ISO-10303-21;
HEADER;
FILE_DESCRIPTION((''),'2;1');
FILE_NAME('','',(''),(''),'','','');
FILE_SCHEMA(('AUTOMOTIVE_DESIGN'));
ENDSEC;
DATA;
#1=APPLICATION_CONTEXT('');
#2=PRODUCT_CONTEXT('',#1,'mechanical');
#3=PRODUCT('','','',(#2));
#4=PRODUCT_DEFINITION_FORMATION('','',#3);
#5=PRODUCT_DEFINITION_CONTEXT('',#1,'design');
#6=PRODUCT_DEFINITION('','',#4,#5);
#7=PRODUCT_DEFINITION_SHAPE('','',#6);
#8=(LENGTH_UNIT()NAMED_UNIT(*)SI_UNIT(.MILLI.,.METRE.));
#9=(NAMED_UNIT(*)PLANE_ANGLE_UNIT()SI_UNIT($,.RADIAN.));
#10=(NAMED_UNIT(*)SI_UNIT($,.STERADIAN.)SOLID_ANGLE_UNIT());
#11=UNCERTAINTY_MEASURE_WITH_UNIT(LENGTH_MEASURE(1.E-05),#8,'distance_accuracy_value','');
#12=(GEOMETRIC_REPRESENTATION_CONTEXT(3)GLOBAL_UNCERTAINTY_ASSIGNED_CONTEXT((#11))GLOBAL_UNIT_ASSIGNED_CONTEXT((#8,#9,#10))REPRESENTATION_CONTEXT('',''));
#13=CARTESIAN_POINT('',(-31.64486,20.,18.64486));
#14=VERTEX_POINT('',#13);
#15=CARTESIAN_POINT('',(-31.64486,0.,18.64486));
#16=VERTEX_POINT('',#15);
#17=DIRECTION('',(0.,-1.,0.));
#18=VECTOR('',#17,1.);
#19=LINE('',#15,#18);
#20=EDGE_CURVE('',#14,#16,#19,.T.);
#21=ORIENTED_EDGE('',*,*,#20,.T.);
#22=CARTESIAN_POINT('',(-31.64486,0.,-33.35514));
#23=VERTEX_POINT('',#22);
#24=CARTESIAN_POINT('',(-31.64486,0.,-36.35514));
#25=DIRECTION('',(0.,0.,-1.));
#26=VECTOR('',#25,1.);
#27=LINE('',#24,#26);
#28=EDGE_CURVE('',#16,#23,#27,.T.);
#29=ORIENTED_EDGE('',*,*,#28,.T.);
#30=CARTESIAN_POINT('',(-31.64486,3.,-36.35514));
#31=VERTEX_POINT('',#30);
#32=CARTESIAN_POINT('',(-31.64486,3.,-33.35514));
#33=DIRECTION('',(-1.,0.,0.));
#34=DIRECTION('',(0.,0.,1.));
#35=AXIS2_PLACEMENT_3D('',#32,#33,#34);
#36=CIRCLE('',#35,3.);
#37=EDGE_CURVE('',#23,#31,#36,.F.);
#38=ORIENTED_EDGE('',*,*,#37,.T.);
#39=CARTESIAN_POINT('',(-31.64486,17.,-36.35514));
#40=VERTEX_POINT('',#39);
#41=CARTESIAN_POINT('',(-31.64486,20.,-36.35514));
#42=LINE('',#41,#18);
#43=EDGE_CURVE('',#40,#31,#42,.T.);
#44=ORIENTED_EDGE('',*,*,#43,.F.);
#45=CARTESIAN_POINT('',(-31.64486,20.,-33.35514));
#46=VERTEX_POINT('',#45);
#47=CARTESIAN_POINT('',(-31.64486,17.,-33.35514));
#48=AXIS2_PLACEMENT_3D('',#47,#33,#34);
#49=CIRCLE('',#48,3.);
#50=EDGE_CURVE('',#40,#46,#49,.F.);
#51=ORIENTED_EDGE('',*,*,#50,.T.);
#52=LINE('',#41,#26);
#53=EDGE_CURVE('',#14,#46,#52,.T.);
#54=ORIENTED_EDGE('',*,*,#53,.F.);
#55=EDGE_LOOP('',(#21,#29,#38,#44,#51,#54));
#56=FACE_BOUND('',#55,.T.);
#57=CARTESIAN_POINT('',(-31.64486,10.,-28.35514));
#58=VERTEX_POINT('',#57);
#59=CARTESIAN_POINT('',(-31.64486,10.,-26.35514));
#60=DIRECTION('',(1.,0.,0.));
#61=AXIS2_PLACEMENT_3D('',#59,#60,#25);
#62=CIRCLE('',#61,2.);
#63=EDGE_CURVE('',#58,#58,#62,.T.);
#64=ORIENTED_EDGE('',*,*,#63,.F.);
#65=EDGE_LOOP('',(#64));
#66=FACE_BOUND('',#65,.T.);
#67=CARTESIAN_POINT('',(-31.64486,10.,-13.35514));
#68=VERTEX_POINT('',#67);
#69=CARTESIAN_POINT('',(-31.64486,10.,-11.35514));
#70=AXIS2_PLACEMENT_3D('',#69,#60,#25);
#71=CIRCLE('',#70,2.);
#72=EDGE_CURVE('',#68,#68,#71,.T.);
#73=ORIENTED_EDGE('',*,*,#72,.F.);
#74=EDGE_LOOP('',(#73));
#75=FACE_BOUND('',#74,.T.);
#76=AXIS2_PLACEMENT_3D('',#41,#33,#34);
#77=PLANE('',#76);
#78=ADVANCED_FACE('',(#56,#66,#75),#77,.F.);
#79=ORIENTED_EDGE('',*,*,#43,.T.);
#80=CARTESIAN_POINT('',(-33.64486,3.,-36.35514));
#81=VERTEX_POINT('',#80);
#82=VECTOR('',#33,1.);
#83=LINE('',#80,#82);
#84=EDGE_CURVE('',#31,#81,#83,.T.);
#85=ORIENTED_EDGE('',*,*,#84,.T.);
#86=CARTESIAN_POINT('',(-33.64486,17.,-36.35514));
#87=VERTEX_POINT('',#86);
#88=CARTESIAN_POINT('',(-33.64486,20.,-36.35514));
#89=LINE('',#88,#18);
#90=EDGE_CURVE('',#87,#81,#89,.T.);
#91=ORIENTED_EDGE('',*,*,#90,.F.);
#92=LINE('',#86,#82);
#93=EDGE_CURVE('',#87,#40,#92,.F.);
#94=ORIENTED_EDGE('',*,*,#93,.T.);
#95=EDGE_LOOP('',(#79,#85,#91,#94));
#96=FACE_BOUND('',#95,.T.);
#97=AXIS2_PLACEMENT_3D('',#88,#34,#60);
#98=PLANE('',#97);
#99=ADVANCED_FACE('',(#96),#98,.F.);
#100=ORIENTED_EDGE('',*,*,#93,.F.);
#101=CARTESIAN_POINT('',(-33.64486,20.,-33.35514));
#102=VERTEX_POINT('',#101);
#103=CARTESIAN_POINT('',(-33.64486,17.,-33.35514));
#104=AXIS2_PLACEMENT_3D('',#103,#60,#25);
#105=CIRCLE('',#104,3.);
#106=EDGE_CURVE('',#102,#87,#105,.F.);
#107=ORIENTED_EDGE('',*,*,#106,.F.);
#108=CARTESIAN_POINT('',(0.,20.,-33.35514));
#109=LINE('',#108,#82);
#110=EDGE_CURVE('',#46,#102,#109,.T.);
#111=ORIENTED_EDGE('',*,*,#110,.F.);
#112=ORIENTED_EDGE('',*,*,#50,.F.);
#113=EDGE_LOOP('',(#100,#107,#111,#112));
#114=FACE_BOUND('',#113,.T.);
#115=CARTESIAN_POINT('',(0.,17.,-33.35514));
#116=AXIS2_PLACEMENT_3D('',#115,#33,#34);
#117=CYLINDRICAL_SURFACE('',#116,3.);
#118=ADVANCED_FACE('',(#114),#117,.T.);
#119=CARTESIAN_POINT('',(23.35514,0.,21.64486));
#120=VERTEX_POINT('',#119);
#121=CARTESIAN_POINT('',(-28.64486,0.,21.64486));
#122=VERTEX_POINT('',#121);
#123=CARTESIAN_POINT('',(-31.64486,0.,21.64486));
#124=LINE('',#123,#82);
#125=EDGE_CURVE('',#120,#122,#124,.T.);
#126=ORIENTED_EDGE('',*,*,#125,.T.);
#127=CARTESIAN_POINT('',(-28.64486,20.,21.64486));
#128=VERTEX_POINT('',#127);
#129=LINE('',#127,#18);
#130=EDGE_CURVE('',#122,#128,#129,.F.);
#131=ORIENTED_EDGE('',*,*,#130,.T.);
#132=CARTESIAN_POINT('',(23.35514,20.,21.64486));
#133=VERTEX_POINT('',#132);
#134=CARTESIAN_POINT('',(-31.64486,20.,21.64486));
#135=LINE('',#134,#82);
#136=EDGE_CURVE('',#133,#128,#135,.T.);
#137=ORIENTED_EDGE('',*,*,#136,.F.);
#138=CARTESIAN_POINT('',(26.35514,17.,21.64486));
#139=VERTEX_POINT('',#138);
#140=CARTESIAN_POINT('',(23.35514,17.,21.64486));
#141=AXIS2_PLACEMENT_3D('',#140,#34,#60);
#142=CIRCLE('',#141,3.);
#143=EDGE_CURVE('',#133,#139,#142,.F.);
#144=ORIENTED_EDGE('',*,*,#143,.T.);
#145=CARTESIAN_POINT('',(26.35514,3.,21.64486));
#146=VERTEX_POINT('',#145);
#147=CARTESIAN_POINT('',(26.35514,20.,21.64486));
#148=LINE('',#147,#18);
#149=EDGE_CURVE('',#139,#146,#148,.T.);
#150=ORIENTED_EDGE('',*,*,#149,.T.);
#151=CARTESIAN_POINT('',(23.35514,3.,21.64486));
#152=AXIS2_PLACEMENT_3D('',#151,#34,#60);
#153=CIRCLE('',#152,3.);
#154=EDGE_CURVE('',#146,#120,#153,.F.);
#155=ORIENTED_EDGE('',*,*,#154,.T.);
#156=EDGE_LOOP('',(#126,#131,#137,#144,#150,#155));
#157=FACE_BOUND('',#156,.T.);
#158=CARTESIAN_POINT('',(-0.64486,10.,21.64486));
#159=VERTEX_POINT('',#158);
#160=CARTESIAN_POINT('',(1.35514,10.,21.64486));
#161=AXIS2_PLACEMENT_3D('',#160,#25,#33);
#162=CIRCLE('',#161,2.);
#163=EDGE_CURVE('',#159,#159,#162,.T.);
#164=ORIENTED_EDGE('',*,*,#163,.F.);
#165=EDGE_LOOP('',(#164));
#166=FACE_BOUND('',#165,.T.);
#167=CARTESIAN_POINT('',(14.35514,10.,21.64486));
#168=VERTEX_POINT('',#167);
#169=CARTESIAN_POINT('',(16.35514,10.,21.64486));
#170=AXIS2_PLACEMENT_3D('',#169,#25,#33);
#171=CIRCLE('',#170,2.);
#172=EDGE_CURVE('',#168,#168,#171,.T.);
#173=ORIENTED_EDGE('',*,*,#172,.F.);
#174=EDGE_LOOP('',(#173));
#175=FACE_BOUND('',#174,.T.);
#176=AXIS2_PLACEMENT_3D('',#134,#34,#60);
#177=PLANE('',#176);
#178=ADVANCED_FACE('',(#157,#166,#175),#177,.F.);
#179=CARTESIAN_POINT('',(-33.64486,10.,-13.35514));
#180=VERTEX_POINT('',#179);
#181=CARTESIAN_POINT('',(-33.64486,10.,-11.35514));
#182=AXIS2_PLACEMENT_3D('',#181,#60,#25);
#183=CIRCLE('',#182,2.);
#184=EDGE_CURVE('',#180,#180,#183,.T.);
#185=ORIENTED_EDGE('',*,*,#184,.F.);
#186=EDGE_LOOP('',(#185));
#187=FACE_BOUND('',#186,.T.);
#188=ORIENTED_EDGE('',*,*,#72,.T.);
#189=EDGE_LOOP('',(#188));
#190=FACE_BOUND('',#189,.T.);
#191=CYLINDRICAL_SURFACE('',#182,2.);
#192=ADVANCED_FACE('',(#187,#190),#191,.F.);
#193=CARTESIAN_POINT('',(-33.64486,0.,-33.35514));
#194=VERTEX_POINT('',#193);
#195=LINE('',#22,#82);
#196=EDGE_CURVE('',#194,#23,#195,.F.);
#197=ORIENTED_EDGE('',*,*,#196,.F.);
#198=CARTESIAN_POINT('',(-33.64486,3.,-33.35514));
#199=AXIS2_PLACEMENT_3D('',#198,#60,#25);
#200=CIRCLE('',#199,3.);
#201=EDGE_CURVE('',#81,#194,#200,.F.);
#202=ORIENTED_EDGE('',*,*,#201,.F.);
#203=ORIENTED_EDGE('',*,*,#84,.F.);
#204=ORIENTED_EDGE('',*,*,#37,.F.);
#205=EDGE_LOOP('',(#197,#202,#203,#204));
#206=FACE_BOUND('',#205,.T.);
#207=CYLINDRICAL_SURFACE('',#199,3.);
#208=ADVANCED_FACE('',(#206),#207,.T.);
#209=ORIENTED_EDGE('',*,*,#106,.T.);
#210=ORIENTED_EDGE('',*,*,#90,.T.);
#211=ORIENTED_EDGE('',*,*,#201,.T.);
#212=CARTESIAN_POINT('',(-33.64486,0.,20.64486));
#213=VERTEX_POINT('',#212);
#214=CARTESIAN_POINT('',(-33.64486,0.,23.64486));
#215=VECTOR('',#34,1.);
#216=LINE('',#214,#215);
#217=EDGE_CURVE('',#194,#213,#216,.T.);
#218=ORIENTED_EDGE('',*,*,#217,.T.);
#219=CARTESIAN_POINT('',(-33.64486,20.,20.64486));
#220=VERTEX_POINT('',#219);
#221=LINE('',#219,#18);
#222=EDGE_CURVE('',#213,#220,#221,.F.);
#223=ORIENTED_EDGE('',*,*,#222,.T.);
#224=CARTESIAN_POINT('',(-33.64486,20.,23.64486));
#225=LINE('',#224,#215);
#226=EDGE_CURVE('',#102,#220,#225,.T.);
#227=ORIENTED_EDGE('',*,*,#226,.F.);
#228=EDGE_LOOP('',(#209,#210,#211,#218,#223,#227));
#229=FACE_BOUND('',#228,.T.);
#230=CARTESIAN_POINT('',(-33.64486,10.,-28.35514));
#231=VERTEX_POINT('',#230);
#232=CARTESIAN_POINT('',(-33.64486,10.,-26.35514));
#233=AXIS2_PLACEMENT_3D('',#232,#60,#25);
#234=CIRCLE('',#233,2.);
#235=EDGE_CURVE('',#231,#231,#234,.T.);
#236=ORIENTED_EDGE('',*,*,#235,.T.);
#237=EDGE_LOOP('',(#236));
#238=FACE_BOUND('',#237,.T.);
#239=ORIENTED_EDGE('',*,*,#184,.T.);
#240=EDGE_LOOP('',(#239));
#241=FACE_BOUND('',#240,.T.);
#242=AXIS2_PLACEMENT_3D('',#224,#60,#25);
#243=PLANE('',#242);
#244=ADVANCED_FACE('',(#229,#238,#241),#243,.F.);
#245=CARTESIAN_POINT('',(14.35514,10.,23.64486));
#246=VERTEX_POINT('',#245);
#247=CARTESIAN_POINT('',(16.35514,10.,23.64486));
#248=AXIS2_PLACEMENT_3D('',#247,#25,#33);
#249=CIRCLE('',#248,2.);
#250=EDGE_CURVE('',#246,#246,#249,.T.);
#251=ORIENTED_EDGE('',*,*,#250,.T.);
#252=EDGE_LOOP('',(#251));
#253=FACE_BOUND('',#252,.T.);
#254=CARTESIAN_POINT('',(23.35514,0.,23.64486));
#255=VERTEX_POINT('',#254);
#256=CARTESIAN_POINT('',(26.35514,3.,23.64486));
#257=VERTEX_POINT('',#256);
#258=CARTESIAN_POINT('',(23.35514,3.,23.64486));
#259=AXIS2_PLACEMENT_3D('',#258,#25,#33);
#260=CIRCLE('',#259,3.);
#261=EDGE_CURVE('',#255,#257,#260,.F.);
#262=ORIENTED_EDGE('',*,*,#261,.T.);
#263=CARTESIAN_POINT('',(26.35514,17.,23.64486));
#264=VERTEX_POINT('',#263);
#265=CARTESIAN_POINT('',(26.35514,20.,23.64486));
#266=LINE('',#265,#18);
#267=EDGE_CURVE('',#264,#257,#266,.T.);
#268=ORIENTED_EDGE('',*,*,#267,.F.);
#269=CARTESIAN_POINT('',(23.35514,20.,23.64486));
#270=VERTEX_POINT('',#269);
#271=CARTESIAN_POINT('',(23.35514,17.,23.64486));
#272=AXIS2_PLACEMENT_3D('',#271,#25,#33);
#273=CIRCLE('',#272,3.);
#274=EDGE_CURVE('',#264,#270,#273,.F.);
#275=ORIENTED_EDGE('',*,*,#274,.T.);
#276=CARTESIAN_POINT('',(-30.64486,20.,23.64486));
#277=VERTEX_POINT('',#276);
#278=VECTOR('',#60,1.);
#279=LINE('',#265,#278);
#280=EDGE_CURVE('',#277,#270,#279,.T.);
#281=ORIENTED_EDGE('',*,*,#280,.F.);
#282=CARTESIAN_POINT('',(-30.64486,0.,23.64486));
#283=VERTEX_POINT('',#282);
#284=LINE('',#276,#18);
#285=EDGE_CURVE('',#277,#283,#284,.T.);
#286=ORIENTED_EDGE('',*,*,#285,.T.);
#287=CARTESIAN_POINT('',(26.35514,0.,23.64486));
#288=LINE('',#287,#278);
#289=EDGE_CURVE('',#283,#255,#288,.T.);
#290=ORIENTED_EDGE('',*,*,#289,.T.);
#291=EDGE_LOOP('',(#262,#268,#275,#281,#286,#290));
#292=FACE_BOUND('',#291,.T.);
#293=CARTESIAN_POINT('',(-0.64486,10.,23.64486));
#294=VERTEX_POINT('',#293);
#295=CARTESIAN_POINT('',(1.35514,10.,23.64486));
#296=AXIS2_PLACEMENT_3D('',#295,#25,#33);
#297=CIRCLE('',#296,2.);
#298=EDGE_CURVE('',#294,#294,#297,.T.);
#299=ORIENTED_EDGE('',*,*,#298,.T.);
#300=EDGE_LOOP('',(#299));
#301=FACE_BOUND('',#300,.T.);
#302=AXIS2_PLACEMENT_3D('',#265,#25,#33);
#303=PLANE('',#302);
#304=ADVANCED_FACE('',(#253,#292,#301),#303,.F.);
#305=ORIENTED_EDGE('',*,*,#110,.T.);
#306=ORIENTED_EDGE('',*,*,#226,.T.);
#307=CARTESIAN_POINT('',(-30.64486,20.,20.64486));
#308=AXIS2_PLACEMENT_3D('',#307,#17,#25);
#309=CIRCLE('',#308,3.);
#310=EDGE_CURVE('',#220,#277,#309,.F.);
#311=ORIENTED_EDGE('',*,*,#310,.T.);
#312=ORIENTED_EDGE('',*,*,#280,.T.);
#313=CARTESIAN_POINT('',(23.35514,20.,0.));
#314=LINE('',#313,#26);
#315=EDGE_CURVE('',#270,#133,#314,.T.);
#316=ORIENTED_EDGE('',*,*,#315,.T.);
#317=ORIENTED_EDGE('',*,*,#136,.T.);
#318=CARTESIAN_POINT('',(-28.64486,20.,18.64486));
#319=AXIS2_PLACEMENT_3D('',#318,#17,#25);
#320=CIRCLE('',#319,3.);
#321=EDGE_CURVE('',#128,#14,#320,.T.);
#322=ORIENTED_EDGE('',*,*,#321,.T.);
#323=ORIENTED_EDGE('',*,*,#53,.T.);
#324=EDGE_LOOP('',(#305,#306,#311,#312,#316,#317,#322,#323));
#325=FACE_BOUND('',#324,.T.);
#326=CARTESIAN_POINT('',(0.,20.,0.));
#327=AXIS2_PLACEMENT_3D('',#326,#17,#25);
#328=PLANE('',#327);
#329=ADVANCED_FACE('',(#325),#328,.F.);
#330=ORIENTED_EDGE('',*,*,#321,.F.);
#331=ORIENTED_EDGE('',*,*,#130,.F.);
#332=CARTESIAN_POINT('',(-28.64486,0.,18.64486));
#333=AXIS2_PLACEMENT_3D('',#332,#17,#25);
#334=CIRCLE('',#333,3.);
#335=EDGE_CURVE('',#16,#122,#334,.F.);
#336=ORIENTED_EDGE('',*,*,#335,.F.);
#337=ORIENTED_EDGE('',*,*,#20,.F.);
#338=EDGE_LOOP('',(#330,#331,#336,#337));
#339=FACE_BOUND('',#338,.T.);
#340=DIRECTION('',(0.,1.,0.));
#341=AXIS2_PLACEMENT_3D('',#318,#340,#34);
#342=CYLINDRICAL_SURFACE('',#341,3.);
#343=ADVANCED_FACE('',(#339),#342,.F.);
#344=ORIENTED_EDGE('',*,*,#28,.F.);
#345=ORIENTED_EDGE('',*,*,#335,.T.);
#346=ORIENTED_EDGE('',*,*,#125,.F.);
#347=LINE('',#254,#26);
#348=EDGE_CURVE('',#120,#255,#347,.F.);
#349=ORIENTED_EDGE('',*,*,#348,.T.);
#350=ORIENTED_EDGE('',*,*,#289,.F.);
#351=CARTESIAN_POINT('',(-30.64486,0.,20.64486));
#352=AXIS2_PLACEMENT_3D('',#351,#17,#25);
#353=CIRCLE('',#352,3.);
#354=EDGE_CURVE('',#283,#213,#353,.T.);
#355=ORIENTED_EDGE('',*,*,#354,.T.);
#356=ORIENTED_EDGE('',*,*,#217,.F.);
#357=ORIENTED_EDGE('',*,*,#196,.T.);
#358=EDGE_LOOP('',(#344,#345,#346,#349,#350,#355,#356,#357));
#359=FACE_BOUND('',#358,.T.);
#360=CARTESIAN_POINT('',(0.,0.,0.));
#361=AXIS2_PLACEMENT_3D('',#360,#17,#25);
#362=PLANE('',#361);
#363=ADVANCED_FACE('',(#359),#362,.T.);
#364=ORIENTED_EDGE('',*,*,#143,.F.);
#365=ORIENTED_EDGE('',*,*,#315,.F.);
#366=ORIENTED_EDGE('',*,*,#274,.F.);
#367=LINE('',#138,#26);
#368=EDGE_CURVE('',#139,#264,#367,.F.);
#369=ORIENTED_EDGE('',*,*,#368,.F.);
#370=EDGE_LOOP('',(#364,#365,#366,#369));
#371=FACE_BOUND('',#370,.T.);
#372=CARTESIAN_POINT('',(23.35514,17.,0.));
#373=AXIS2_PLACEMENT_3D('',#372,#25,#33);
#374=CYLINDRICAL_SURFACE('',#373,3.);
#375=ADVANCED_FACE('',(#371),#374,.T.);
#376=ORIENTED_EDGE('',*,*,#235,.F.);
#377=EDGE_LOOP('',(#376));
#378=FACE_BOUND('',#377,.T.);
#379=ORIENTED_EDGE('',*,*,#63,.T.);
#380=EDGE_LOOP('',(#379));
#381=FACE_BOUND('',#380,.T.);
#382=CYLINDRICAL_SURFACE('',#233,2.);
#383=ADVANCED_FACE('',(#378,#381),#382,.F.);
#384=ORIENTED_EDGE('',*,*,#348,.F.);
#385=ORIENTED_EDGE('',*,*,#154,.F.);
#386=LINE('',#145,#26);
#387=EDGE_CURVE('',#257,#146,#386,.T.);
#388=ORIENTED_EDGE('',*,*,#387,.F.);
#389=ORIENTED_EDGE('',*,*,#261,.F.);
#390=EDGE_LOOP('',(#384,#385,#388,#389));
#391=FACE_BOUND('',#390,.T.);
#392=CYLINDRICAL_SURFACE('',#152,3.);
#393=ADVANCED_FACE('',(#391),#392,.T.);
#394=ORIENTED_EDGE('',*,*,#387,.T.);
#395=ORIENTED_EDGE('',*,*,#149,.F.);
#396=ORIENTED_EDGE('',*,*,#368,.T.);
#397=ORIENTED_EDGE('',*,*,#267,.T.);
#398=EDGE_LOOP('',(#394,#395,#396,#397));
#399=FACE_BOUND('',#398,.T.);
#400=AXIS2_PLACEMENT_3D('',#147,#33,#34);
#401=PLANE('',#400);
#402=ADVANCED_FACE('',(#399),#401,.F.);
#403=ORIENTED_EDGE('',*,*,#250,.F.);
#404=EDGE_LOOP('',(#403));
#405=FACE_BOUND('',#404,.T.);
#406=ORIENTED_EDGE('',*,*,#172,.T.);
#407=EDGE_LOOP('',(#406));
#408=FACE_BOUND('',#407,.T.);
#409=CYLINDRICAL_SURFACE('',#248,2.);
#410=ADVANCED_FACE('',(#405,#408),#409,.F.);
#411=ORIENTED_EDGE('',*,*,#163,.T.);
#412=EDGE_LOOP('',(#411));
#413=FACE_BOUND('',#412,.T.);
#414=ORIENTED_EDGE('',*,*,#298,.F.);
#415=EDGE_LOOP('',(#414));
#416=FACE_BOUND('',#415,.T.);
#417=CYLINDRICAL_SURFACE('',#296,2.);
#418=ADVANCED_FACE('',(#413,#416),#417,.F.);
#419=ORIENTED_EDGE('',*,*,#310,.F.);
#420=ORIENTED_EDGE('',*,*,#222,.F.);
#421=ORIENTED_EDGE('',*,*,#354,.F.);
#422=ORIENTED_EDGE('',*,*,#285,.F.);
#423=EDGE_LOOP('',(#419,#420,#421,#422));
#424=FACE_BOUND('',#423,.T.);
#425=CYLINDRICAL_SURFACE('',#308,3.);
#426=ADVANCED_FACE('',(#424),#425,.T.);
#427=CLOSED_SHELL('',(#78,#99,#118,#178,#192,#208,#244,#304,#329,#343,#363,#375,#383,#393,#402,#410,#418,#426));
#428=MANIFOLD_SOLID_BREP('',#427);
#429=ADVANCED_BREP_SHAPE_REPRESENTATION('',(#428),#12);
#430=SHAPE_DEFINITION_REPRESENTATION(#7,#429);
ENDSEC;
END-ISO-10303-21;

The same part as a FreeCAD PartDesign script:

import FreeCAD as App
import Part
import Sketcher
Q = App.Units.Quantity


def edges_at(feature, points):
    """Names of the edges that pass closest to the given points."""
    edges = feature.Shape.Edges
    near = lambda p: min(range(len(edges)), key=lambda i: edges[i].distToShape(Part.Vertex(*p))[0])
    return sorted({f"Edge{near(p) + 1}" for p in points})

doc = App.newDocument("Part")
body = doc.addObject("PartDesign::Body", "Body")

# Sketch on XZ plane
sketch1 = doc.addObject("Sketcher::SketchObject", "Sketch")
body.addObject(sketch1)
sketch1.AttachmentSupport = (doc.XZ_Plane, [""])
sketch1.MapMode = "FlatFace"
sketch1.addGeometry([
    Part.LineSegment(App.Vector(-31.64486, 21.64486, 0), App.Vector(-31.64486, -36.35514, 0)),  # 0
    Part.LineSegment(App.Vector(-31.64486, -36.35514, 0), App.Vector(-33.64486, -36.35514, 0)),  # 1
    Part.LineSegment(App.Vector(-33.64486, -36.35514, 0), App.Vector(-33.64486, 23.64486, 0)),  # 2
    Part.LineSegment(App.Vector(-33.64486, 23.64486, 0), App.Vector(26.35514, 23.64486, 0)),  # 3
    Part.LineSegment(App.Vector(26.35514, 23.64486, 0), App.Vector(26.35514, 21.64486, 0)),  # 4
    Part.LineSegment(App.Vector(26.35514, 21.64486, 0), App.Vector(-31.64486, 21.64486, 0)),  # 5
], False)
sketch1.addConstraint([
    Sketcher.Constraint("Coincident", 0, 2, 1, 1),
    Sketcher.Constraint("Coincident", 1, 2, 2, 1),
    Sketcher.Constraint("Coincident", 2, 2, 3, 1),
    Sketcher.Constraint("Coincident", 3, 2, 4, 1),
    Sketcher.Constraint("Coincident", 4, 2, 5, 1),
    Sketcher.Constraint("Coincident", 5, 2, 0, 1),
    Sketcher.Constraint("Vertical", 0),
    Sketcher.Constraint("Horizontal", 1),
    Sketcher.Constraint("Vertical", 2),
    Sketcher.Constraint("Horizontal", 3),
    Sketcher.Constraint("Vertical", 4),
    Sketcher.Constraint("Horizontal", 5),
    Sketcher.Constraint("Equal", 5, 0),
    Sketcher.Constraint("Equal", 3, 2),
    Sketcher.Constraint("DistanceX", 1, 2, 1, 1, Q("2 mm")),
    Sketcher.Constraint("DistanceX", 3, 1, 3, 2, Q("60 mm")),
    Sketcher.Constraint("DistanceX", 0, 2, -1, 1, Q("31.64486 mm")),
    Sketcher.Constraint("DistanceY", 0, 2, -1, 1, Q("36.35514 mm")),
])
pad1 = doc.addObject("PartDesign::Pad", "Pad")
body.addObject(pad1)
pad1.Profile = sketch1
pad1.Length = 20
pad1.Reversed = True
doc.recompute()

fillet = doc.addObject("PartDesign::Fillet", "Fillet")
body.addObject(fillet)
fillet.Base = (pad1, edges_at(pad1, [
    (-31.645, 10, 21.645),
    (-33.645, 10, 23.645),
    (26.355, 20, 22.645),
    (-32.645, 20, -36.355),
    (26.355, 0, 22.645),
    (-32.645, 0, -36.355),
]))
fillet.Radius = 3

# Sketch on XY plane
sketch2 = doc.addObject("Sketcher::SketchObject", "Sketch001")
body.addObject(sketch2)
sketch2.AttachmentSupport = (doc.XY_Plane, [""])
sketch2.MapMode = "FlatFace"
sketch2.AttachmentOffset = App.Placement(App.Vector(0, 0, 21.64486), App.Rotation())
sketch2.addGeometry([
    Part.Circle(App.Vector(1.35514, 10, 0), App.Vector(0, 0, 1), 2),
    Part.Circle(App.Vector(16.35514, 10, 0), App.Vector(0, 0, 1), 2),
], False)
sketch2.addConstraint([
    Sketcher.Constraint("Equal", 0, 1),
    Sketcher.Constraint("Horizontal", 0, 3, 1, 3),
    Sketcher.Constraint("Diameter", 0, Q("4 mm")),
    Sketcher.Constraint("DistanceY", -1, 1, 0, 3, Q("10 mm")),
    Sketcher.Constraint("DistanceX", 0, 3, 1, 3, Q("15 mm")),
    Sketcher.Constraint("DistanceX", -1, 1, 0, 3, Q("1.35514 mm")),
])
pocket1 = doc.addObject("PartDesign::Pocket", "Pocket")
body.addObject(pocket1)
pocket1.Profile = sketch2
pocket1.Type = "ThroughAll"
pocket1.Reversed = True

# Sketch on YZ plane
sketch3 = doc.addObject("Sketcher::SketchObject", "Sketch002")
body.addObject(sketch3)
sketch3.AttachmentSupport = (doc.YZ_Plane, [""])
sketch3.MapMode = "FlatFace"
sketch3.AttachmentOffset = App.Placement(App.Vector(0, 0, -31.64486), App.Rotation())
sketch3.addGeometry([
    Part.Circle(App.Vector(10, -26.35514, 0), App.Vector(0, 0, 1), 2),
    Part.Circle(App.Vector(10, -11.35514, 0), App.Vector(0, 0, 1), 2),
], False)
sketch3.addConstraint([
    Sketcher.Constraint("Equal", 0, 1),
    Sketcher.Constraint("Vertical", 0, 3, 1, 3),
    Sketcher.Constraint("Diameter", 0, Q("4 mm")),
    Sketcher.Constraint("DistanceX", -1, 1, 0, 3, Q("10 mm")),
    Sketcher.Constraint("DistanceY", 0, 3, 1, 3, Q("15 mm")),
    Sketcher.Constraint("DistanceY", 0, 3, -1, 1, Q("26.35514 mm")),
])
pocket2 = doc.addObject("PartDesign::Pocket", "Pocket001")
body.addObject(pocket2)
pocket2.Profile = sketch3
pocket2.Type = "ThroughAll"

doc.recompute()
